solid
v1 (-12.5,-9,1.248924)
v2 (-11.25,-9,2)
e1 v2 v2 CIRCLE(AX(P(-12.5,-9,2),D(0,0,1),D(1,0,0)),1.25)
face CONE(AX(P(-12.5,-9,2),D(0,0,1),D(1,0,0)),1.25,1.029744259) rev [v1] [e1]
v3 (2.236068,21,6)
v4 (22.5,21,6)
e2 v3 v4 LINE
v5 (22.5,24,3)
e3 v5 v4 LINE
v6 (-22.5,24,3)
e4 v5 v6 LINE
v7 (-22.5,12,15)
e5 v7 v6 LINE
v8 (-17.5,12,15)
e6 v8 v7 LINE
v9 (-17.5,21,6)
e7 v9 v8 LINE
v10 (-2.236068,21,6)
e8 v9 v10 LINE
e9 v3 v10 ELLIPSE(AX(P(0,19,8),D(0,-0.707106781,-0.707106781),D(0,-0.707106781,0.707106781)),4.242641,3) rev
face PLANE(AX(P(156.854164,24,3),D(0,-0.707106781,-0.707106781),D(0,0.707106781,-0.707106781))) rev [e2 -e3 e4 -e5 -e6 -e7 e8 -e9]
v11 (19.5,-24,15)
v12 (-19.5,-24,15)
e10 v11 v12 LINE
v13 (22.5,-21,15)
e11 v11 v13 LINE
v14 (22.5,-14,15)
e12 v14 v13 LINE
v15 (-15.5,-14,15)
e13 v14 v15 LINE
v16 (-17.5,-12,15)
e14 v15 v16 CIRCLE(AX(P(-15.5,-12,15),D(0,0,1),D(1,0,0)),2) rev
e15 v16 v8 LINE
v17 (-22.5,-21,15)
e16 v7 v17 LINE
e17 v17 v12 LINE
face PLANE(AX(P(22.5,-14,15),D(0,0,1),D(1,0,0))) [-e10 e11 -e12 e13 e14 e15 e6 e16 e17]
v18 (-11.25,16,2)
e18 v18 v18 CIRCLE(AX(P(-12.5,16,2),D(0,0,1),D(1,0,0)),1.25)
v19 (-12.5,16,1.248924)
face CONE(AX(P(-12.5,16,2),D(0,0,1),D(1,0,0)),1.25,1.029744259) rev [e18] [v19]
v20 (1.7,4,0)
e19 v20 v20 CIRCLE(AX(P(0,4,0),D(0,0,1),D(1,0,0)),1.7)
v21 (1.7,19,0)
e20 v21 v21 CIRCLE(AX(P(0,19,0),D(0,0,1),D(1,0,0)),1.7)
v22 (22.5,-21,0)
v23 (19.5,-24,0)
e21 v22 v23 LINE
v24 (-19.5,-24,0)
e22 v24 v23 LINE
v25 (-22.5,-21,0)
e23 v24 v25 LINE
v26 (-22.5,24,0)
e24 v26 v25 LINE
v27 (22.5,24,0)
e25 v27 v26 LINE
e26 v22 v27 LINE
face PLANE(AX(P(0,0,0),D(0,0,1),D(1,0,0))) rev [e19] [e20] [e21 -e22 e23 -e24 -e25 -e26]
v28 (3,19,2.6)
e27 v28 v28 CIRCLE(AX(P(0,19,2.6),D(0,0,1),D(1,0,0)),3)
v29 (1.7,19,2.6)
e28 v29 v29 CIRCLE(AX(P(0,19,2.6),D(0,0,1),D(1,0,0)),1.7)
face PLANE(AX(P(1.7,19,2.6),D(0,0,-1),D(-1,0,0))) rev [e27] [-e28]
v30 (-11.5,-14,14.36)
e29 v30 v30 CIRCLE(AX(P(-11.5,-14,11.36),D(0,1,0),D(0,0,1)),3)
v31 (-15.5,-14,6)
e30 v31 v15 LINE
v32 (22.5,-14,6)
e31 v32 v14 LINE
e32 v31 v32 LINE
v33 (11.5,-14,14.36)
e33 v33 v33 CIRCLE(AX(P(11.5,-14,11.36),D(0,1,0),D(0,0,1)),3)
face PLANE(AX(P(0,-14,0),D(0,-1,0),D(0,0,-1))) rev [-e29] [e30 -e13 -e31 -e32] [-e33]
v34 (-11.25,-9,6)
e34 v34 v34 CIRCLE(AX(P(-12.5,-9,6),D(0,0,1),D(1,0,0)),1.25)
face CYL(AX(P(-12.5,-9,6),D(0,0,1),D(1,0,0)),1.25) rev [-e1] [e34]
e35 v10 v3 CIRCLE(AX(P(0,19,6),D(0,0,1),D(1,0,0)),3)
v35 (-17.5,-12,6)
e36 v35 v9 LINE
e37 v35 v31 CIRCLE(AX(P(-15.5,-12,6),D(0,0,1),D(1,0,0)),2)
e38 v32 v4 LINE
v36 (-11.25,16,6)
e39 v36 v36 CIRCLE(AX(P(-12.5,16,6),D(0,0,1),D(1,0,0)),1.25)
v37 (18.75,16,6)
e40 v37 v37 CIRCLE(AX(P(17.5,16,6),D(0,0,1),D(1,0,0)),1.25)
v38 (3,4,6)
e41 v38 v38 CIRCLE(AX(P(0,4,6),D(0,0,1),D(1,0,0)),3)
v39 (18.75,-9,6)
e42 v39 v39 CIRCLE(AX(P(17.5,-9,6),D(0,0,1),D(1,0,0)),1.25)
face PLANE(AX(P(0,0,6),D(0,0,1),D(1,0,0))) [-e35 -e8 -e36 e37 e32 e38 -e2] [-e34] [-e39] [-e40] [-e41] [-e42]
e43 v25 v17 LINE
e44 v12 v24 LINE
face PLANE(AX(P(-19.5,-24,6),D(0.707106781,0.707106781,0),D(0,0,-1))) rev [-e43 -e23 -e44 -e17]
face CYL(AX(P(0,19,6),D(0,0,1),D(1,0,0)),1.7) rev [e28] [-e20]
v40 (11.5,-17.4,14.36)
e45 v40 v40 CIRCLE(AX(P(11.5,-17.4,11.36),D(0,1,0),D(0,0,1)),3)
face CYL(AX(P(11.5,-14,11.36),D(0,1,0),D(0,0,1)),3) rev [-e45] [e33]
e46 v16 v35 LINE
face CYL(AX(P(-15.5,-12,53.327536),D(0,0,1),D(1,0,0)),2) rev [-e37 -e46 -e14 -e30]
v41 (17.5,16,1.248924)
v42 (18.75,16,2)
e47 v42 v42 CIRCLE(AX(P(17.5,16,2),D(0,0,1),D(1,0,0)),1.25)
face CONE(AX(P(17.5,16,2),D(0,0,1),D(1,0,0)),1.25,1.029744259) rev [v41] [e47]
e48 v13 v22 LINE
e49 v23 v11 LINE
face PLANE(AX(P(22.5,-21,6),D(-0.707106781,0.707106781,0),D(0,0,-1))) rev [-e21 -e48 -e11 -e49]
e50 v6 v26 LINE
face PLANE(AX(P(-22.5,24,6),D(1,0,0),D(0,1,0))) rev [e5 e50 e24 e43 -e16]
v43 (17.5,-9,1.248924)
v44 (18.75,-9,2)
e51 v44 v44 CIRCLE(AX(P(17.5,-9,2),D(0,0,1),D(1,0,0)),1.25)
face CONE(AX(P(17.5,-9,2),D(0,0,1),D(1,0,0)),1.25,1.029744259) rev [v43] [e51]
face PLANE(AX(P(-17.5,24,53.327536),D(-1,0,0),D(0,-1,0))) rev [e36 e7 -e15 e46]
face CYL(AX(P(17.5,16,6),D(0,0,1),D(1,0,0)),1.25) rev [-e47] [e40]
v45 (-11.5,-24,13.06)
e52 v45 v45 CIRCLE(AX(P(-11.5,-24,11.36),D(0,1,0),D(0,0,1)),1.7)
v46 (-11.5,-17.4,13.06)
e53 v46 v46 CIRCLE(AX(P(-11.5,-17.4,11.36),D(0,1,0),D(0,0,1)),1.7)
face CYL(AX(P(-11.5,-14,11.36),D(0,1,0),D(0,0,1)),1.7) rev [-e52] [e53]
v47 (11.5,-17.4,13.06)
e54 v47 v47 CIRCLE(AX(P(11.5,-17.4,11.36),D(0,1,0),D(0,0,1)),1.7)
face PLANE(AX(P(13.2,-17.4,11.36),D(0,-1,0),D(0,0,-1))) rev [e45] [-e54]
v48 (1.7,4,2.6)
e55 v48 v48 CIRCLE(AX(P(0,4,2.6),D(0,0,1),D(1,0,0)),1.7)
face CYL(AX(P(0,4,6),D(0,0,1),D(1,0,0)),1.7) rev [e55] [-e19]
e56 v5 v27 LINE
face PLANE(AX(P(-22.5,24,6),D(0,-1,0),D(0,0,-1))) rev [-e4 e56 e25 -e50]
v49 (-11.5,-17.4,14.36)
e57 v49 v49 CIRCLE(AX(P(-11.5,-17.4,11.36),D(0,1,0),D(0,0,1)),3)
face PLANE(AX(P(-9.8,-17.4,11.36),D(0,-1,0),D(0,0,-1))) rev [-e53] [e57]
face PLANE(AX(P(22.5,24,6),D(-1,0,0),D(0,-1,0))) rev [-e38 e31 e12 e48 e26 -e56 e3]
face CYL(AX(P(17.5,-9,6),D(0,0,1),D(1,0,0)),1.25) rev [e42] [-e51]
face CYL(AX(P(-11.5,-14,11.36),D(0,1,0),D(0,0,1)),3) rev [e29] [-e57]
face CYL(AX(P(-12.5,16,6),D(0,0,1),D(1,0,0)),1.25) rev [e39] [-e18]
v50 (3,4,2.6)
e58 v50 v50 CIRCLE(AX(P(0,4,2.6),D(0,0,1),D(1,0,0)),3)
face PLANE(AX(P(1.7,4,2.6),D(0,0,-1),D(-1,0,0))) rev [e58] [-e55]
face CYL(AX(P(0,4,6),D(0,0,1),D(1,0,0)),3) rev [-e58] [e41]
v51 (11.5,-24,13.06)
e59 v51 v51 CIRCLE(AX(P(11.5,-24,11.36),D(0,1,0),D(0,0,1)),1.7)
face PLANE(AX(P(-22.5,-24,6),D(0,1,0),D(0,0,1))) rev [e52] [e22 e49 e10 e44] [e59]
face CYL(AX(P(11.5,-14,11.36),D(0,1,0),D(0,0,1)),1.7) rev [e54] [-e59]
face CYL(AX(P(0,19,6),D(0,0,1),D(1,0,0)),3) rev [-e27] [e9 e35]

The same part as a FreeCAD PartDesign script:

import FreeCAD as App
import Part
import Sketcher

V = App.Vector
Q = App.Units.Quantity


def edges_at(feature, points):
    """Names of the edges that pass closest to the given points."""
    edges = feature.Shape.Edges
    near = lambda p: min(range(len(edges)), key=lambda i: edges[i].distToShape(Part.Vertex(*p))[0])
    return sorted({f"Edge{near(p) + 1}" for p in points})

doc = App.newDocument("Part")
params = doc.addObject("Spreadsheet::Sheet", "Params")
for row, (alias, value) in enumerate([
    ("sketch1_width", "45 mm"),
    ("sketch1_height", "48 mm"),
    ("pad1_length", "6 mm"),
    ("sketch2_width", "45 mm"),
    ("sketch2_height", "15 mm"),
    ("pad2_length", "10 mm"),
    ("sketch3_diameter", "3.4 mm"),
    ("hole_diameter", "3.4 mm"),
    ("hole_depth", "15 mm"),
    ("hole_cbore_diameter", "6 mm"),
    ("hole_cbore_depth", "3.4 mm"),
    ("sketch4_width", "5 mm"),
    ("sketch4_height", "38 mm"),
    ("pad3_length", "9 mm"),
    ("fillet_radius", "2 mm"),
    ("sketch5_diameter", "3.4 mm"),
    ("hole2_diameter", "3.4 mm"),
    ("hole2_cbore_diameter", "6 mm"),
    ("hole2_cbore_depth", "3.4 mm"),
    ("chamfer_size", "3 mm"),
    ("sketch7_diameter", "2.5 mm"),
    ("hole3_diameter", "2.5 mm"),
    ("hole3_depth", "4 mm"),
], start=1):
    params.set(f"A{row}", alias)
    params.set(f"B{row}", "=" + value)
    params.setAlias(f"B{row}", alias)

body = doc.addObject("PartDesign::Body", "Body")

# Sketch on XY plane
sketch1 = body.newObject("Sketcher::SketchObject", "Sketch")
sketch1.AttachmentSupport = (doc.getObject("XY_Plane"), [""])
sketch1.MapMode = "FlatFace"
sketch1.addGeometry([
    Part.LineSegment(V(-22.5, 24, 0), V(-22.5, -24, 0)),
    Part.LineSegment(V(-22.5, -24, 0), V(22.5, -24, 0)),
    Part.LineSegment(V(22.5, -24, 0), V(22.5, 24, 0)),
    Part.LineSegment(V(22.5, 24, 0), V(-22.5, 24, 0)),
], False)
sketch1.addConstraint([
    Sketcher.Constraint("Coincident", 0, 2, 1, 1),
    Sketcher.Constraint("Coincident", 1, 2, 2, 1),
    Sketcher.Constraint("Coincident", 2, 2, 3, 1),
    Sketcher.Constraint("Coincident", 3, 2, 0, 1),
    Sketcher.Constraint("Vertical", 0),
    Sketcher.Constraint("Horizontal", 1),
    Sketcher.Constraint("Vertical", 2),
    Sketcher.Constraint("Horizontal", 3),
    Sketcher.Constraint("Symmetric", 0, 2, 2, 2, -1, 1),
    Sketcher.Constraint("DistanceX", 1, 1, 1, 2, Q("45 mm")),
    Sketcher.Constraint("DistanceY", 0, 2, 0, 1, Q("48 mm")),
])
sketch1.setExpression("Constraints[9]", "Params.sketch1_width")
sketch1.setExpression("Constraints[10]", "Params.sketch1_height")
pad1 = body.newObject("PartDesign::Pad", "Pad")
pad1.Profile = sketch1
pad1.setExpression("Length", "Params.pad1_length")

# Sketch on XZ plane
sketch2 = body.newObject("Sketcher::SketchObject", "Sketch001")
sketch2.AttachmentSupport = (doc.getObject("XZ_Plane"), [""])
sketch2.MapMode = "FlatFace"
sketch2.AttachmentOffset = App.Placement(V(0, 0, 24), App.Rotation())
sketch2.addGeometry([
    Part.LineSegment(V(-22.5, 15, 0), V(-22.5, 0, 0)),
    Part.LineSegment(V(-22.5, 0, 0), V(22.5, 0, 0)),
    Part.LineSegment(V(22.5, 0, 0), V(22.5, 15, 0)),
    Part.LineSegment(V(22.5, 15, 0), V(-22.5, 15, 0)),
], False)
sketch2.addConstraint([
    Sketcher.Constraint("Coincident", 0, 2, 1, 1),
    Sketcher.Constraint("Coincident", 1, 2, 2, 1),
    Sketcher.Constraint("Coincident", 2, 2, 3, 1),
    Sketcher.Constraint("Coincident", 3, 2, 0, 1),
    Sketcher.Constraint("Vertical", 0),
    Sketcher.Constraint("Horizontal", 1),
    Sketcher.Constraint("Vertical", 2),
    Sketcher.Constraint("Horizontal", 3),
    Sketcher.Constraint("Symmetric", 0, 2, 1, 2, -1, 1),
    Sketcher.Constraint("DistanceX", 1, 1, 1, 2, Q("45 mm")),
    Sketcher.Constraint("DistanceY", 0, 2, 0, 1, Q("15 mm")),
])
sketch2.setExpression("Constraints[9]", "Params.sketch2_width")
sketch2.setExpression("Constraints[10]", "Params.sketch2_height")
pad2 = body.newObject("PartDesign::Pad", "Pad001")
pad2.Profile = sketch2
pad2.setExpression("Length", "Params.pad2_length")
pad2.Reversed = True

# Sketch on XZ plane
sketch3 = body.newObject("Sketcher::SketchObject", "Sketch002")
sketch3.AttachmentSupport = (doc.getObject("XZ_Plane"), [""])
sketch3.MapMode = "FlatFace"
sketch3.AttachmentOffset = App.Placement(V(0, 0, 14), App.Rotation())
sketch3.addGeometry([
    Part.Circle(V(-11.5, 11.36, 0), V(0, 0, 1), 1.7),
    Part.Circle(V(11.5, 11.36, 0), V(0, 0, 1), 1.7),
], False)
sketch3.addConstraint([
    Sketcher.Constraint("Equal", 0, 1),
    Sketcher.Constraint("Symmetric", 0, 3, 1, 3, -2),
    Sketcher.Constraint("Diameter", 0, Q("3.4 mm")),
    Sketcher.Constraint("DistanceX", 0, 3, 1, 3, Q("23 mm")),
    Sketcher.Constraint("DistanceY", -1, 1, 0, 3, Q("11.36 mm")),
])
sketch3.setExpression("Constraints[2]", "Params.sketch3_diameter")
doc.recompute()
hole = body.newObject("PartDesign::Hole", "Hole")
hole.Profile = sketch3
hole.ThreadType = "None"
hole.setExpression("Diameter", "Params.hole_diameter")
hole.DepthType = "Dimension"
hole.setExpression("Depth", "Params.hole_depth")
hole.DrillPoint = "Angled"
hole.DrillPointAngle = 118
hole.HoleCutType = "Counterbore"
hole.setExpression("HoleCutDiameter", "Params.hole_cbore_diameter")
hole.setExpression("HoleCutDepth", "Params.hole_cbore_depth")
hole.Reversed = True

# Sketch on XY plane
sketch4 = body.newObject("Sketcher::SketchObject", "Sketch003")
sketch4.AttachmentSupport = (doc.getObject("XY_Plane"), [""])
sketch4.MapMode = "FlatFace"
sketch4.AttachmentOffset = App.Placement(V(0, 0, 6), App.Rotation())
sketch4.addGeometry([
    Part.LineSegment(V(-22.5, 24, 0), V(-22.5, -14, 0)),
    Part.LineSegment(V(-22.5, -14, 0), V(-17.5, -14, 0)),
    Part.LineSegment(V(-17.5, -14, 0), V(-17.5, 24, 0)),
    Part.LineSegment(V(-17.5, 24, 0), V(-22.5, 24, 0)),
], False)
sketch4.addConstraint([
    Sketcher.Constraint("Coincident", 0, 2, 1, 1),
    Sketcher.Constraint("Coincident", 1, 2, 2, 1),
    Sketcher.Constraint("Coincident", 2, 2, 3, 1),
    Sketcher.Constraint("Coincident", 3, 2, 0, 1),
    Sketcher.Constraint("Vertical", 0),
    Sketcher.Constraint("Horizontal", 1),
    Sketcher.Constraint("Vertical", 2),
    Sketcher.Constraint("Horizontal", 3),
    Sketcher.Constraint("DistanceX", 1, 1, 1, 2, Q("5 mm")),
    Sketcher.Constraint("DistanceY", 0, 2, 0, 1, Q("38 mm")),
    Sketcher.Constraint("DistanceY", 0, 2, -1, 1, Q("14 mm")),
    Sketcher.Constraint("DistanceX", 0, 2, -1, 1, Q("22.5 mm")),
])
sketch4.setExpression("Constraints[8]", "Params.sketch4_width")
sketch4.setExpression("Constraints[9]", "Params.sketch4_height")
pad3 = body.newObject("PartDesign::Pad", "Pad002")
pad3.Profile = sketch4
pad3.setExpression("Length", "Params.pad3_length")
doc.recompute()

fillet = body.newObject("PartDesign::Fillet", "Fillet")
fillet.Base = (pad3, edges_at(pad3, [(-17.5, -14, 10.5)]))
fillet.setExpression("Radius", "Params.fillet_radius")

# Sketch on XY plane
sketch5 = body.newObject("Sketcher::SketchObject", "Sketch004")
sketch5.AttachmentSupport = (doc.getObject("XY_Plane"), [""])
sketch5.MapMode = "FlatFace"
sketch5.AttachmentOffset = App.Placement(V(0, 0, 6), App.Rotation())
sketch5.addGeometry([
    Part.Circle(V(0, 19, 0), V(0, 0, 1), 1.7),
    Part.Circle(V(0, 4, 0), V(0, 0, 1), 1.7),
], False)
sketch5.addConstraint([
    Sketcher.Constraint("Equal", 0, 1),
    Sketcher.Constraint("PointOnObject", 0, 3, -2),
    Sketcher.Constraint("PointOnObject", 1, 3, -2),
    Sketcher.Constraint("Diameter", 0, Q("3.4 mm")),
    Sketcher.Constraint("DistanceY", -1, 1, 0, 3, Q("19 mm")),
    Sketcher.Constraint("DistanceY", -1, 1, 1, 3, Q("4 mm")),
])
sketch5.setExpression("Constraints[3]", "Params.sketch5_diameter")
doc.recompute()
hole2 = body.newObject("PartDesign::Hole", "Hole001")
hole2.Profile = sketch5
hole2.ThreadType = "None"
hole2.setExpression("Diameter", "Params.hole2_diameter")
hole2.DepthType = "ThroughAll"
hole2.HoleCutType = "Counterbore"
hole2.setExpression("HoleCutDiameter", "Params.hole2_cbore_diameter")
hole2.setExpression("HoleCutDepth", "Params.hole2_cbore_depth")
doc.recompute()

chamfer = body.newObject("PartDesign::Chamfer", "Chamfer")
chamfer.Base = (hole2, edges_at(hole2, [(22.5, -24, 7.5), (-22.5, -24, 7.5)]))
chamfer.setExpression("Size", "Params.chamfer_size")

# Sketch on YZ plane
sketch6 = body.newObject("Sketcher::SketchObject", "Sketch005")
sketch6.AttachmentSupport = (doc.getObject("YZ_Plane"), [""])
sketch6.MapMode = "FlatFace"
sketch6.AttachmentOffset = App.Placement(V(0, 0, 22.5), App.Rotation())
sketch6.addGeometry([
    Part.LineSegment(V(-65.042491, 92.042491, 0), V(101.042491, -74.042491, 0)),
    Part.LineSegment(V(101.042491, -74.042491, 0), V(255.127472, 80.042491, 0)),
    Part.LineSegment(V(255.127472, 80.042491, 0), V(89.042491, 246.127472, 0)),
    Part.LineSegment(V(89.042491, 246.127472, 0), V(-65.042491, 92.042491, 0)),
], False)
sketch6.addConstraint([
    Sketcher.Constraint("Coincident", 0, 2, 1, 1),
    Sketcher.Constraint("Coincident", 1, 2, 2, 1),
    Sketcher.Constraint("Coincident", 2, 2, 3, 1),
    Sketcher.Constraint("Coincident", 3, 2, 0, 1),
    Sketcher.Constraint("Perpendicular", 0, 1),
    Sketcher.Constraint("Perpendicular", 1, 2),
    Sketcher.Constraint("Perpendicular", 2, 3),
    Sketcher.Constraint("Angle", 0, Q("-45 deg")),
    Sketcher.Constraint("DistanceX", 2, 2, 0, 2, Q("12 mm")),
    Sketcher.Constraint("Distance", 1, Q("217.90907 mm")),
    Sketcher.Constraint("DistanceX", -1, 1, 0, 2, Q("101.042491 mm")),
    Sketcher.Constraint("DistanceY", 0, 2, -1, 1, Q("74.042491 mm")),
])
pocket1 = body.newObject("PartDesign::Pocket", "Pocket")
pocket1.Profile = sketch6
pocket1.Type = "ThroughAll"
pocket1.Midplane = True

# Sketch on XY plane
sketch7 = body.newObject("Sketcher::SketchObject", "Sketch006")
sketch7.AttachmentSupport = (doc.getObject("XY_Plane"), [""])
sketch7.MapMode = "FlatFace"
sketch7.AttachmentOffset = App.Placement(V(0, 0, 6), App.Rotation())
sketch7.addGeometry([
    Part.Circle(V(-12.5, 16, 0), V(0, 0, 1), 1.25),
    Part.Circle(V(17.5, 16, 0), V(0, 0, 1), 1.25),
    Part.Circle(V(-12.5, -9, 0), V(0, 0, 1), 1.25),
    Part.Circle(V(17.5, -9, 0), V(0, 0, 1), 1.25),
], False)
sketch7.addConstraint([
    Sketcher.Constraint("Equal", 0, 1),
    Sketcher.Constraint("Equal", 1, 2),
    Sketcher.Constraint("Equal", 2, 3),
    Sketcher.Constraint("Horizontal", 0, 3, 1, 3),
    Sketcher.Constraint("Horizontal", 2, 3, 3, 3),
    Sketcher.Constraint("Vertical", 0, 3, 2, 3),
    Sketcher.Constraint("Vertical", 1, 3, 3, 3),
    Sketcher.Constraint("Diameter", 0, Q("2.5 mm")),
    Sketcher.Constraint("DistanceY", -1, 1, 0, 3, Q("16 mm")),
    Sketcher.Constraint("DistanceY", 2, 3, -1, 1, Q("9 mm")),
    Sketcher.Constraint("DistanceX", 0, 3, 1, 3, Q("30 mm")),
    Sketcher.Constraint("DistanceX", 0, 3, -1, 1, Q("12.5 mm")),
])
sketch7.setExpression("Constraints[7]", "Params.sketch7_diameter")
doc.recompute()
hole3 = body.newObject("PartDesign::Hole", "Hole002")
hole3.Profile = sketch7
hole3.ThreadType = "None"
hole3.setExpression("Diameter", "Params.hole3_diameter")
hole3.DepthType = "Dimension"
hole3.setExpression("Depth", "Params.hole3_depth")
hole3.DrillPoint = "Angled"
hole3.DrillPointAngle = 118

doc.recompute()
